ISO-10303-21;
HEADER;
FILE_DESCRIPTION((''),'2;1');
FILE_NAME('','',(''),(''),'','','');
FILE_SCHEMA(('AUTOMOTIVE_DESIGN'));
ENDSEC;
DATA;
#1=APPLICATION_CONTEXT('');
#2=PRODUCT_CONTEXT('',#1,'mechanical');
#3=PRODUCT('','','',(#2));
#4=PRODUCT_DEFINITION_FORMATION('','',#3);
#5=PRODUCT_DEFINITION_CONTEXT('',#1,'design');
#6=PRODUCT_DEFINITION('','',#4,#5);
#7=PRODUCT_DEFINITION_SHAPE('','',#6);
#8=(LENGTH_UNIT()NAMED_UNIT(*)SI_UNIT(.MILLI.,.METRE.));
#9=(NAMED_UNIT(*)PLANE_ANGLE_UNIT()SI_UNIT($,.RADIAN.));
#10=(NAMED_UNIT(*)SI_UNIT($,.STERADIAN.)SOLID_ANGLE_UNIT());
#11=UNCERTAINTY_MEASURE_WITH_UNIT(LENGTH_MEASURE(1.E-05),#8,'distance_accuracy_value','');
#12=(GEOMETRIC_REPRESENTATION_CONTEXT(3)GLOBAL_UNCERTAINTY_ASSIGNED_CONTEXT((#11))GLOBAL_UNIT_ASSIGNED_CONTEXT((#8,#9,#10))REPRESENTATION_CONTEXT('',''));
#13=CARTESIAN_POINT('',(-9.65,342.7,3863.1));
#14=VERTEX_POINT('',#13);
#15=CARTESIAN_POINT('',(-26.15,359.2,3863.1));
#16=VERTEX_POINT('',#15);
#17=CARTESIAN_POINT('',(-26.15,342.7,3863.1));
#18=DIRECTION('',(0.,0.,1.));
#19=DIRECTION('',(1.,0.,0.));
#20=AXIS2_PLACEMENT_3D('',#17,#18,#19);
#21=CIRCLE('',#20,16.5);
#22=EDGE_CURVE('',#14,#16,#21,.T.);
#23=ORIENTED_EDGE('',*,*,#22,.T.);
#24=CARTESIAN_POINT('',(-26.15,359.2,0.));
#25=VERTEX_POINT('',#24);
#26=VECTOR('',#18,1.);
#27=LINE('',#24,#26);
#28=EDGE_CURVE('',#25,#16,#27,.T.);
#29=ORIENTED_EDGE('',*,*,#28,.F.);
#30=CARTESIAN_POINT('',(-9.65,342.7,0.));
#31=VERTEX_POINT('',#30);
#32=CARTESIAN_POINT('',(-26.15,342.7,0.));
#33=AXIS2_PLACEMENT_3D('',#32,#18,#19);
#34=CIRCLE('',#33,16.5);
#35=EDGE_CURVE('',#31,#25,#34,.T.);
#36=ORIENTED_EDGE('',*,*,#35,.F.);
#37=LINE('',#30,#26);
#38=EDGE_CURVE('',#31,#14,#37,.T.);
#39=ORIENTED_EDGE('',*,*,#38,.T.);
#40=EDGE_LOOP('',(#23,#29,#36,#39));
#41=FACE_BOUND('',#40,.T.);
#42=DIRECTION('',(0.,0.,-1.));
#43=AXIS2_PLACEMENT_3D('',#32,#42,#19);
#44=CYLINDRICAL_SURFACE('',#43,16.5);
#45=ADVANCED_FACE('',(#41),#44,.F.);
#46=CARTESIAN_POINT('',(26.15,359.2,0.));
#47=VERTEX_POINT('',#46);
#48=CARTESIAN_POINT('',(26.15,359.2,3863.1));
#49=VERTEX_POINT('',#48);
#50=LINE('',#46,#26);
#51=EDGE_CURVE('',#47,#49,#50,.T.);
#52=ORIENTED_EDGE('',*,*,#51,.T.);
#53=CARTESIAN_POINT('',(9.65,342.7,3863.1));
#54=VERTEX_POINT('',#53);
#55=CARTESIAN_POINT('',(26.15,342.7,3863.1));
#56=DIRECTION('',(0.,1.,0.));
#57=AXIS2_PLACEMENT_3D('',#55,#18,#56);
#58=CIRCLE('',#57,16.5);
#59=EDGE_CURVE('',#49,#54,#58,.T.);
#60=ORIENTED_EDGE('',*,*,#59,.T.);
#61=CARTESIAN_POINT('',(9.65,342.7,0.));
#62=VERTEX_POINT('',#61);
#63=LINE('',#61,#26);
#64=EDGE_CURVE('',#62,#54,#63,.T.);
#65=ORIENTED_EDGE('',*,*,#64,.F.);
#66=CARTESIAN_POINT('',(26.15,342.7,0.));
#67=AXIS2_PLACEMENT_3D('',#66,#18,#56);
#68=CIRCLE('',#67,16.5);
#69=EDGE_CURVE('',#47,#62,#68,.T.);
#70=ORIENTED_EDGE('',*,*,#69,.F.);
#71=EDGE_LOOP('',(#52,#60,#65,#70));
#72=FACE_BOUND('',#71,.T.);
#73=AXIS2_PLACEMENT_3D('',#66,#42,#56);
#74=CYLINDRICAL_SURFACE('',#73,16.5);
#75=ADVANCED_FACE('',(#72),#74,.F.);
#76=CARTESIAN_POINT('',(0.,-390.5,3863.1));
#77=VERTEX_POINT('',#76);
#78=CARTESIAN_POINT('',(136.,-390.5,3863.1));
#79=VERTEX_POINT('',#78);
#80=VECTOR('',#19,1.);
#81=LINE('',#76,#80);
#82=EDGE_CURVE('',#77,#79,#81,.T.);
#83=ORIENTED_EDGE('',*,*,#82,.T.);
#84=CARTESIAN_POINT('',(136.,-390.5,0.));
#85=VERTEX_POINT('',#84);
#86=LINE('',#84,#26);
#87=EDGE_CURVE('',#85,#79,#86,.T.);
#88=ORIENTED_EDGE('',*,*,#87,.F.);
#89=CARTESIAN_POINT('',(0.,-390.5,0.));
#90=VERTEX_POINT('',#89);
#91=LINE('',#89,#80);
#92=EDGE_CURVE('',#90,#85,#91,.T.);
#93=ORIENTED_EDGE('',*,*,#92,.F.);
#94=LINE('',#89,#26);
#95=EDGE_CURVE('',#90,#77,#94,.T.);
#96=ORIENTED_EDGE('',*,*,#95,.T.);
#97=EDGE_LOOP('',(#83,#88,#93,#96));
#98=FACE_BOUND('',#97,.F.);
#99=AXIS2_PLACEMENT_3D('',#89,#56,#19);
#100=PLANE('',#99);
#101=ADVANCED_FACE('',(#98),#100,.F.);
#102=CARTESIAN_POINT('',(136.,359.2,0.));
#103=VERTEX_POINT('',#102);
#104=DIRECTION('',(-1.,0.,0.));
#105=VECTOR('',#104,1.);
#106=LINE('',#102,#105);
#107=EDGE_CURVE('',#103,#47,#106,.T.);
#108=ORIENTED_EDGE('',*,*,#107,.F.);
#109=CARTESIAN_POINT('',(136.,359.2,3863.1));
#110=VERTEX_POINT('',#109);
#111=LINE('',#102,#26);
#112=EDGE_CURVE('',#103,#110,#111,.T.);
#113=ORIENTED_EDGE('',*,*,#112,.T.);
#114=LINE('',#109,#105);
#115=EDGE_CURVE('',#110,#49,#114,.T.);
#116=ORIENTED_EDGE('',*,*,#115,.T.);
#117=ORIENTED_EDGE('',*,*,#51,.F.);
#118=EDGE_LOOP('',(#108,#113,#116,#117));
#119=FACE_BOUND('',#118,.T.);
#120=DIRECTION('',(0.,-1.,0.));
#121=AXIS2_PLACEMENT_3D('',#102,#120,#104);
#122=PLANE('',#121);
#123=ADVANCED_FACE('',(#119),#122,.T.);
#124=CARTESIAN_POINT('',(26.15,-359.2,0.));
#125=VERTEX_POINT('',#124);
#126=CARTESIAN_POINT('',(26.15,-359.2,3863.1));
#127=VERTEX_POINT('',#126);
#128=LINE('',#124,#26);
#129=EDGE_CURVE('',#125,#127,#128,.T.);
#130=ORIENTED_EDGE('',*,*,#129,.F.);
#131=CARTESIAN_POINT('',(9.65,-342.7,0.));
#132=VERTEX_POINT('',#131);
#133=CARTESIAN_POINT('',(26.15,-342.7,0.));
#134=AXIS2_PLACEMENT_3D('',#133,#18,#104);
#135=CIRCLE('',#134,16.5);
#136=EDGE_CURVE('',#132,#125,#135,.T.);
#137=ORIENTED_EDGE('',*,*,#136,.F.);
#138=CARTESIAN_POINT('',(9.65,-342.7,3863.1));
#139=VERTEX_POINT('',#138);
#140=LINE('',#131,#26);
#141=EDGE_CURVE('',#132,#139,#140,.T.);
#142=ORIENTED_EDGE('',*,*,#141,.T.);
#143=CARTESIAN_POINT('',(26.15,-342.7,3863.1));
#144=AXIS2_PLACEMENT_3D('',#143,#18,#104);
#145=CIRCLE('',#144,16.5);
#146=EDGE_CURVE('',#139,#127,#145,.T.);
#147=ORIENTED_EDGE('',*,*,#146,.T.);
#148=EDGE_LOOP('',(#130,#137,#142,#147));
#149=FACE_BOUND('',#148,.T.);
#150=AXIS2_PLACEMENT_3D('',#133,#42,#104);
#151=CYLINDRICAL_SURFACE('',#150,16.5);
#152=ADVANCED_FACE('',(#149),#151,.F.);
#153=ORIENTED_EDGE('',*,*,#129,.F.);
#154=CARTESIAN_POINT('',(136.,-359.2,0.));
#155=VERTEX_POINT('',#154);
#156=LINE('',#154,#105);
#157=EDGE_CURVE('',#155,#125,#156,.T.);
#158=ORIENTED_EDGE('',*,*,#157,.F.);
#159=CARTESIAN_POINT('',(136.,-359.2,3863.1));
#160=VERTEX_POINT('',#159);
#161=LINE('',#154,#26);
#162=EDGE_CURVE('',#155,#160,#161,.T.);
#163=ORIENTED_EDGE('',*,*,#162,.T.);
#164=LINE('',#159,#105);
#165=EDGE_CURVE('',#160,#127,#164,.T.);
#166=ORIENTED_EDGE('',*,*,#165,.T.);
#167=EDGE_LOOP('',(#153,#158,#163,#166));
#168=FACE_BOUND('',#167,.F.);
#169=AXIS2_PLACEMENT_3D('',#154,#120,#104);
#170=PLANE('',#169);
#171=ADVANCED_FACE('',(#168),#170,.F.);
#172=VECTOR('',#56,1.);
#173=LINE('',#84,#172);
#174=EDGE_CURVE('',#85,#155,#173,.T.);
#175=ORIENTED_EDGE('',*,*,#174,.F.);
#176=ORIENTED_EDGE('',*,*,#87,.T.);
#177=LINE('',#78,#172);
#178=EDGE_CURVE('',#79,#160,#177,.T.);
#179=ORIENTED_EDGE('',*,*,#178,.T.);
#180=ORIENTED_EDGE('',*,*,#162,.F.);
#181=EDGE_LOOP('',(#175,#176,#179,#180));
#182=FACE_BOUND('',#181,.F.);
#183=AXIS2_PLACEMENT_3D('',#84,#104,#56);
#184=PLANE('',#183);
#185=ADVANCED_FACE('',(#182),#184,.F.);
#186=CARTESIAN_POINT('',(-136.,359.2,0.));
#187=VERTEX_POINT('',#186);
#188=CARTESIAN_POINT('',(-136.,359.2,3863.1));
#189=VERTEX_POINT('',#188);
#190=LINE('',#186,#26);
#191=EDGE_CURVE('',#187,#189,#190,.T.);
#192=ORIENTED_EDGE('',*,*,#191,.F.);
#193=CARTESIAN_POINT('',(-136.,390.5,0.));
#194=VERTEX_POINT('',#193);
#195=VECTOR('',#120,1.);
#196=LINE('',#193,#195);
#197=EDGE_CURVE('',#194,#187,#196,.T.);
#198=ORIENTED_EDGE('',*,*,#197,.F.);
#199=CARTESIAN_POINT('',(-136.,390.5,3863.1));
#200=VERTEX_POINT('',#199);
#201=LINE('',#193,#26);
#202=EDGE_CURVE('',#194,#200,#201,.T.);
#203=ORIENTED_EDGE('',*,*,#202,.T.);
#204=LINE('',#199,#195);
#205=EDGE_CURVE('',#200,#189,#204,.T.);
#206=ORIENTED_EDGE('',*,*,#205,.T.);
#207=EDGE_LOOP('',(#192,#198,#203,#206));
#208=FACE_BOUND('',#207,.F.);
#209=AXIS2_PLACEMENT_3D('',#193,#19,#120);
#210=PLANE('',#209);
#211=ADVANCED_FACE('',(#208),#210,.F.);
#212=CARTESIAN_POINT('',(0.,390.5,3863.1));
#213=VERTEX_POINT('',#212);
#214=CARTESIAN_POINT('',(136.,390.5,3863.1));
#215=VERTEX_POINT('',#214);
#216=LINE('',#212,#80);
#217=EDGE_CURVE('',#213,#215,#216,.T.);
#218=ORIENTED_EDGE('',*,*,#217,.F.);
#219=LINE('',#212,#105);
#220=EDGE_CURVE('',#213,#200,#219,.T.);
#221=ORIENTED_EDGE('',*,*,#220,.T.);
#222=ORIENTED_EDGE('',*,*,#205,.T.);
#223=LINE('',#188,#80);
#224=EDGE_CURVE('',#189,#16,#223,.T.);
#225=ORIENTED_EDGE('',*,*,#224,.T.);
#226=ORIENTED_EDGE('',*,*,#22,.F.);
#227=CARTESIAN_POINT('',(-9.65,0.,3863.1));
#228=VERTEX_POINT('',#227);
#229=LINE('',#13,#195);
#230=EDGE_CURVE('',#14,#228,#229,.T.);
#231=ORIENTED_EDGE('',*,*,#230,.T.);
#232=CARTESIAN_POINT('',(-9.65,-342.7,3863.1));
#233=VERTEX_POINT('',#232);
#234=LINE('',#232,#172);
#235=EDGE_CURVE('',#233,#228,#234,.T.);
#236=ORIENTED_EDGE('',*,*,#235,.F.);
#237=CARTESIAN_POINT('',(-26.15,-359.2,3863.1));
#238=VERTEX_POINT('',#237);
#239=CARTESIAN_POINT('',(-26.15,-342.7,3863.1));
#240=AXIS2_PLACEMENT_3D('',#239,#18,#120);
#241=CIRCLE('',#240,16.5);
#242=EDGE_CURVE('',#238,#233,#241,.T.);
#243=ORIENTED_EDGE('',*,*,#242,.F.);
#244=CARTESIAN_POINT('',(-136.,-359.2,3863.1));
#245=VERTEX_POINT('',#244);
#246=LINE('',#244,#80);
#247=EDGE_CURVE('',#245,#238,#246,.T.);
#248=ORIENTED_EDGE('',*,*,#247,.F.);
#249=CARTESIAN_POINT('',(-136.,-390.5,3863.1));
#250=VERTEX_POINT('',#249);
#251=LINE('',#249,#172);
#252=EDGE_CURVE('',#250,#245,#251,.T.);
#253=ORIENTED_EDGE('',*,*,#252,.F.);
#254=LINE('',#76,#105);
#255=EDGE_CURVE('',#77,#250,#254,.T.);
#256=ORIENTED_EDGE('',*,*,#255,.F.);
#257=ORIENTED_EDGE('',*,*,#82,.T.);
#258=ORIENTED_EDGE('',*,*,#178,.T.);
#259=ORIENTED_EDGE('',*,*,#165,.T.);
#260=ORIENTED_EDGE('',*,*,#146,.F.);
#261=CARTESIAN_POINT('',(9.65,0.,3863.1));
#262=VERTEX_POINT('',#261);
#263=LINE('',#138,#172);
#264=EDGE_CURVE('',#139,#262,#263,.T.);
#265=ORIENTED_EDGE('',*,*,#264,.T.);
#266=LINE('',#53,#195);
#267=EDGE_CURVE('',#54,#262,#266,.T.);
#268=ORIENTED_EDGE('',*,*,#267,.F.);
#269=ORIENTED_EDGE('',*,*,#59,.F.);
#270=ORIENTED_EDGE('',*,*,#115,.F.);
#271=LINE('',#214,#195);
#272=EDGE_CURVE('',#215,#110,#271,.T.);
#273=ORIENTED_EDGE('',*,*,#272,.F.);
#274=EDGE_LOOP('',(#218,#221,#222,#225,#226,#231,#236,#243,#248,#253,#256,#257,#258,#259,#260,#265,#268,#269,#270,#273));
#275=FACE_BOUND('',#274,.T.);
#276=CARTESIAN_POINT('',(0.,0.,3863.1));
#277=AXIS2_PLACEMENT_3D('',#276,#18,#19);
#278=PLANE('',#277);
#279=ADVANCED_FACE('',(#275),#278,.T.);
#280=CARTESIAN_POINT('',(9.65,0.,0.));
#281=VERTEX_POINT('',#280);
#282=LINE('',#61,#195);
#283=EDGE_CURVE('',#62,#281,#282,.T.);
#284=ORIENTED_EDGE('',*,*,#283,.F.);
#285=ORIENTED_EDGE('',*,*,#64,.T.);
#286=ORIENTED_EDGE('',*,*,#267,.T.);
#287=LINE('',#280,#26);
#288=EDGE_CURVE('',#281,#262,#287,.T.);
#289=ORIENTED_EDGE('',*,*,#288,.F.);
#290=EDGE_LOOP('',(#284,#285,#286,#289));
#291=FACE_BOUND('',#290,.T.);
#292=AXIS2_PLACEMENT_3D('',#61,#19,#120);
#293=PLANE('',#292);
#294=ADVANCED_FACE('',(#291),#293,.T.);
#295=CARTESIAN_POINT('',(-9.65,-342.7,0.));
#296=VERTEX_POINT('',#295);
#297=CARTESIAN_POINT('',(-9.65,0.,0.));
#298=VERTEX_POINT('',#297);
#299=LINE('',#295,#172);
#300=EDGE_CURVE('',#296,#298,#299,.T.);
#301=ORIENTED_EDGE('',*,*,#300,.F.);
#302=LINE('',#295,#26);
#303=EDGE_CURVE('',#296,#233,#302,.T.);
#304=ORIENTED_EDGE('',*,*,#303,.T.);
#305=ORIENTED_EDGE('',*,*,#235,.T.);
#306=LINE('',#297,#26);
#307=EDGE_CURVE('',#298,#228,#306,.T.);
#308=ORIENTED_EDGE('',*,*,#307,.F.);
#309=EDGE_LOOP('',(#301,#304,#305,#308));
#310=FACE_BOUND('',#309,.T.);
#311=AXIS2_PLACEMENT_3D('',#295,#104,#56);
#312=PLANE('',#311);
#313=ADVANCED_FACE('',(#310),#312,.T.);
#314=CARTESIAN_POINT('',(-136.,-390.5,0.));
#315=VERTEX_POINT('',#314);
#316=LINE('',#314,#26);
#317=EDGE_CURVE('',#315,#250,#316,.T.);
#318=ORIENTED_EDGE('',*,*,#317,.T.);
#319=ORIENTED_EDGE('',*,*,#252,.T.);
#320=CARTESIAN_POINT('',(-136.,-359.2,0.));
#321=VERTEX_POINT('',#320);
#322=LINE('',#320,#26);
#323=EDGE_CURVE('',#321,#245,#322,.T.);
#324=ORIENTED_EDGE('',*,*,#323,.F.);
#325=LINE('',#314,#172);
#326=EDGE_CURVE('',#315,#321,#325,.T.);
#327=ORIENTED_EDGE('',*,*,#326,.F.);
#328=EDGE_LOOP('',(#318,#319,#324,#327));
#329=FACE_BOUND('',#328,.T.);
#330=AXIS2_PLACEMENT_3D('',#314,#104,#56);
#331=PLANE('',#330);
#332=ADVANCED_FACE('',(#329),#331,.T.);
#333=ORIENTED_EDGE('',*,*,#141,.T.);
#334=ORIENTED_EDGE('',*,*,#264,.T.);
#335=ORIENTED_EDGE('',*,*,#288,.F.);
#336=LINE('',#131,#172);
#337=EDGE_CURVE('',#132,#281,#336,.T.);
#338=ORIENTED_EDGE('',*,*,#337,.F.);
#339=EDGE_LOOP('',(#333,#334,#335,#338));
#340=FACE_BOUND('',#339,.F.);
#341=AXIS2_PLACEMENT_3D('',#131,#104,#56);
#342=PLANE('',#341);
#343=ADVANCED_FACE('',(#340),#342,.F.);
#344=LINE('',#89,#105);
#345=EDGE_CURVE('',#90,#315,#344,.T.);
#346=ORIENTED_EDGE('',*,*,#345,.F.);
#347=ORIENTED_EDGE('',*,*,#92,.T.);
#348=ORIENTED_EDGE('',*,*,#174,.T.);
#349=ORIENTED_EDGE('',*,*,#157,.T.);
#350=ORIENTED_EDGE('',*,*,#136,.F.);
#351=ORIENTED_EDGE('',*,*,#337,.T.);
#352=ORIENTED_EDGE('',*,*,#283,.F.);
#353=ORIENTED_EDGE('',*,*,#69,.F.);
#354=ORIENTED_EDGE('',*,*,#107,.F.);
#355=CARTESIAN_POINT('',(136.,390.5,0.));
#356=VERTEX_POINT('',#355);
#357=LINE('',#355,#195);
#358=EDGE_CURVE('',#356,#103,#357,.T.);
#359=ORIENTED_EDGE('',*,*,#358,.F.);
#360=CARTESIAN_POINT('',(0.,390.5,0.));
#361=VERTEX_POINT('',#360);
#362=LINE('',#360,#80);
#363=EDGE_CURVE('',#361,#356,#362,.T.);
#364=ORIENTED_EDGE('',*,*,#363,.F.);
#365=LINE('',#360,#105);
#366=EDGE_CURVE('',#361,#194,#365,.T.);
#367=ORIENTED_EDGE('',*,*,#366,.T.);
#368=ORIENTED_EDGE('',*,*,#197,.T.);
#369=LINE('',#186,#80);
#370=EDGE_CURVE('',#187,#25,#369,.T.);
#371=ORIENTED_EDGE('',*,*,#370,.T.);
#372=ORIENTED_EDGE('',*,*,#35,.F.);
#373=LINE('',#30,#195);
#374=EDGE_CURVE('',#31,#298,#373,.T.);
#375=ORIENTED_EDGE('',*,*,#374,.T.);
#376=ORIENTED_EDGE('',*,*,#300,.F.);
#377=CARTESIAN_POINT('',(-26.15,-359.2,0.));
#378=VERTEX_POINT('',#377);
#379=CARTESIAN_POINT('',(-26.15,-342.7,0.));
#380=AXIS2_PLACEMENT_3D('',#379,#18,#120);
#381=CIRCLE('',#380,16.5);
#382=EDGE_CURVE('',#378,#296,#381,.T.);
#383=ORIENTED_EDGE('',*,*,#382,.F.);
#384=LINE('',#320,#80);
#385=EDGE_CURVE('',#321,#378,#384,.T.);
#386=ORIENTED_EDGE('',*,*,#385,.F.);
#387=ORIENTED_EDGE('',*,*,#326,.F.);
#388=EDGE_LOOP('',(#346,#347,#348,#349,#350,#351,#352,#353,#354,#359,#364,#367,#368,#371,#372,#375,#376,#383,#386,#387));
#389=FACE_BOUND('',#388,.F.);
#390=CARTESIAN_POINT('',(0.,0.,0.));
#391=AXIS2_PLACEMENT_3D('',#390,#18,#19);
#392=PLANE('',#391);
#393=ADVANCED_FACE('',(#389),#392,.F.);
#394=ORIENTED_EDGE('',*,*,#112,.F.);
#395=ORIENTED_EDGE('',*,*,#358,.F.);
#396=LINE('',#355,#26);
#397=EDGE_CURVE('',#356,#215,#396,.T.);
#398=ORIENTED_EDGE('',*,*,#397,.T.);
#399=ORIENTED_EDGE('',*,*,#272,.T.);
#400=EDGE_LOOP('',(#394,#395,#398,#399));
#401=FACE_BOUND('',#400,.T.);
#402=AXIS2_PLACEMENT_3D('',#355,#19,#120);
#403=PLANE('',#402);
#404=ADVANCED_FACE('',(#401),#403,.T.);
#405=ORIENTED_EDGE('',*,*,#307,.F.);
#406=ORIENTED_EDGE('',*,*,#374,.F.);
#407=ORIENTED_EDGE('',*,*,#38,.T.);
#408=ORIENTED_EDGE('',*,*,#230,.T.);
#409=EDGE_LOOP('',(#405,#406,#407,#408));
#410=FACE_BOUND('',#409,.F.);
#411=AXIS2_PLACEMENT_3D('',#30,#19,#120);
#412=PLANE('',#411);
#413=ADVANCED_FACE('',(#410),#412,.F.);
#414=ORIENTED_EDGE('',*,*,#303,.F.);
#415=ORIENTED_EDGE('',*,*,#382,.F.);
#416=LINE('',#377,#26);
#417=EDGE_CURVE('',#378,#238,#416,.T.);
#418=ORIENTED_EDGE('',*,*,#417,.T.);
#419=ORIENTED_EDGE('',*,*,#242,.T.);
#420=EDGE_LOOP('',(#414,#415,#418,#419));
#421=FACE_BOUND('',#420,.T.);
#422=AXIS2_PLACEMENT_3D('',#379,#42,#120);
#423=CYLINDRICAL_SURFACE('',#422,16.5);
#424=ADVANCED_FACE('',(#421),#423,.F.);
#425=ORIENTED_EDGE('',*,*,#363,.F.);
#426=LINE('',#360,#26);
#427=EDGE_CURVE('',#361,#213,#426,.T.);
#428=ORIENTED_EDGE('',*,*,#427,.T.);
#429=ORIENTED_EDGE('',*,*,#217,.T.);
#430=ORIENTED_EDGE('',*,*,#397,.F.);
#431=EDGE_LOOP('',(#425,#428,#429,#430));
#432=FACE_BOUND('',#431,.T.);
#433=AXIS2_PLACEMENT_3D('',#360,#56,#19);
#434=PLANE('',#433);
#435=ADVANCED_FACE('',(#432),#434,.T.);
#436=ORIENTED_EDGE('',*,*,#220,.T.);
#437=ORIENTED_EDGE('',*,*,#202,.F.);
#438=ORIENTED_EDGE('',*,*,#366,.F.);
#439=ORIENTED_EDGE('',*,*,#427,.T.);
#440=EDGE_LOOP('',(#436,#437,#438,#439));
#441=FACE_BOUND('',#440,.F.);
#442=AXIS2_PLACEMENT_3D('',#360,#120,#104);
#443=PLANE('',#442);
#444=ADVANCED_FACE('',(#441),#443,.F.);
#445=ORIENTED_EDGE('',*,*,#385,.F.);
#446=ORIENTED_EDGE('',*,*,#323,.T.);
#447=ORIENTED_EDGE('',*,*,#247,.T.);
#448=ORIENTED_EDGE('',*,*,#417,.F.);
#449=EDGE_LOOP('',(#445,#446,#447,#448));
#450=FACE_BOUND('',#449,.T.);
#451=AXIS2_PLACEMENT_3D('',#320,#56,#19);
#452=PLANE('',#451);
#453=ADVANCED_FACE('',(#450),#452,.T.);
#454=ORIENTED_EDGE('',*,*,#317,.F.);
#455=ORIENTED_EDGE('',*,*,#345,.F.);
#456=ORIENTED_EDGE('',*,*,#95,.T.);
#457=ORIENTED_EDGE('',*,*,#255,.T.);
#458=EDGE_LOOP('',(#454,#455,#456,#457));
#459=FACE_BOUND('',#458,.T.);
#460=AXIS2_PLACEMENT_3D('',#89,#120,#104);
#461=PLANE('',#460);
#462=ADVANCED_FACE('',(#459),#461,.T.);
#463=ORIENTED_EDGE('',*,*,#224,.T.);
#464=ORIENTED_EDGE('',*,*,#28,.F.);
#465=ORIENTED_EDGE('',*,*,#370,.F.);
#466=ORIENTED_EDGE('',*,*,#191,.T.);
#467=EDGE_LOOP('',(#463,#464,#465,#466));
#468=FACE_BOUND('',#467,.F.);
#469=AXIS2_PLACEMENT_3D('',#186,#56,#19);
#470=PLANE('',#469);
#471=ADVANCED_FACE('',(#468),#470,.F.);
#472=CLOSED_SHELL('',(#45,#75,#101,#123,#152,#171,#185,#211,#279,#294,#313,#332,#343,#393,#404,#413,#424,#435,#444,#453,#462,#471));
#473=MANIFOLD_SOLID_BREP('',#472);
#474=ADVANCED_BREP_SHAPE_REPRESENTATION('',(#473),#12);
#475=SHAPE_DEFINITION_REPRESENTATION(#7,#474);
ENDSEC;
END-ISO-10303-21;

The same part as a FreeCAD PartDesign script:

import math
import FreeCAD as App
import Part
import Sketcher

V = App.Vector
Q = App.Units.Quantity

doc = App.newDocument("Part")
params = doc.addObject("Spreadsheet::Sheet", "Params")
for row, (alias, value) in enumerate([
    ("sketch1_radius", "16.5 mm"),
    ("sketch1_height", "31.3 mm"),
    ("pad1_length", "3863.1 mm"),
], start=1):
    params.set(f"A{row}", alias)
    params.set(f"B{row}", "=" + value)
    params.setAlias(f"B{row}", alias)

body = doc.addObject("PartDesign::Body", "Body")

# Sketch on XY plane
sketch1 = body.newObject("Sketcher::SketchObject", "Sketch")
sketch1.AttachmentSupport = (doc.getObject("XY_Plane"), [""])
sketch1.MapMode = "FlatFace"
sketch1.addGeometry([
    Part.LineSegment(V(-136, -359, 0), V(-136, -390, 0)),  # 0
    Part.LineSegment(V(-136, -390, 0), V(136, -390, 0)),  # 1
    Part.LineSegment(V(136, -390, 0), V(136, -359, 0)),  # 2
    Part.LineSegment(V(136, -359, 0), V(26, -359, 0)),  # 3
    Part.ArcOfCircle(Part.Circle(V(26, -343, 0), V(0, 0, 1), 16), math.radians(180), math.radians(270)),  # 4
    Part.LineSegment(V(10, -343, 0), V(10, 343, 0)),  # 5
    Part.ArcOfCircle(Part.Circle(V(26, 343, 0), V(0, 0, 1), 16), math.radians(90), math.radians(180)),  # 6
    Part.LineSegment(V(26, 359, 0), V(136, 359, 0)),  # 7
    Part.LineSegment(V(136, 359, 0), V(136, 390, 0)),  # 8
    Part.LineSegment(V(136, 390, 0), V(-136, 390, 0)),  # 9
    Part.LineSegment(V(-136, 390, 0), V(-136, 359, 0)),  # 10
    Part.LineSegment(V(-136, 359, 0), V(-26, 359, 0)),  # 11
    Part.ArcOfCircle(Part.Circle(V(-26, 343, 0), V(0, 0, 1), 16), math.radians(0), math.radians(90)),  # 12
    Part.LineSegment(V(-10, 343, 0), V(-10, -343, 0)),  # 13
    Part.ArcOfCircle(Part.Circle(V(-26, -343, 0), V(0, 0, 1), 16), math.radians(-90), math.radians(0)),  # 14
    Part.LineSegment(V(-26, -359, 0), V(-136, -359, 0)),  # 15
], False)
sketch1.addConstraint([
    Sketcher.Constraint("Coincident", 0, 2, 1, 1),
    Sketcher.Constraint("Coincident", 1, 2, 2, 1),
    Sketcher.Constraint("Coincident", 2, 2, 3, 1),
    Sketcher.Constraint("Tangent", 3, 2, 4, 2),
    Sketcher.Constraint("Tangent", 4, 1, 5, 1),
    Sketcher.Constraint("Tangent", 5, 2, 6, 2),
    Sketcher.Constraint("Tangent", 6, 1, 7, 1),
    Sketcher.Constraint("Coincident", 7, 2, 8, 1),
    Sketcher.Constraint("Coincident", 8, 2, 9, 1),
    Sketcher.Constraint("Coincident", 9, 2, 10, 1),
    Sketcher.Constraint("Coincident", 10, 2, 11, 1),
    Sketcher.Constraint("Tangent", 11, 2, 12, 2),
    Sketcher.Constraint("Tangent", 12, 1, 13, 1),
    Sketcher.Constraint("Tangent", 13, 2, 14, 2),
    Sketcher.Constraint("Tangent", 14, 1, 15, 1),
    Sketcher.Constraint("Coincident", 15, 2, 0, 1),
    Sketcher.Constraint("Vertical", 0),
    Sketcher.Constraint("Horizontal", 1),
    Sketcher.Constraint("Vertical", 2),
    Sketcher.Constraint("Horizontal", 3),
    Sketcher.Constraint("Vertical", 5),
    Sketcher.Constraint("Horizontal", 7),
    Sketcher.Constraint("Vertical", 8),
    Sketcher.Constraint("Horizontal", 9),
    Sketcher.Constraint("Vertical", 10),
    Sketcher.Constraint("Horizontal", 11),
    Sketcher.Constraint("Vertical", 13),
    Sketcher.Constraint("Horizontal", 15),
    Sketcher.Constraint("Equal", 4, 6),
    Sketcher.Constraint("Equal", 6, 12),
    Sketcher.Constraint("Equal", 12, 14),
    Sketcher.Constraint("Symmetric", 4, 3, 12, 3, -1, 1),
    Sketcher.Constraint("Symmetric", 0, 2, 8, 2, -1, 1),
    Sketcher.Constraint("Symmetric", 7, 2, 10, 2, -2),
    Sketcher.Constraint("Symmetric", 2, 2, 15, 2, -2),
    Sketcher.Constraint("Radius", 4, Q("16.5 mm")),
    Sketcher.Constraint("DistanceY", 0, 2, 0, 1, Q("31.3 mm")),
    Sketcher.Constraint("DistanceX", 0, 2, -1, 1, Q("136 mm")),
    Sketcher.Constraint("DistanceY", 0, 2, -1, 1, Q("390.5 mm")),
    Sketcher.Constraint("DistanceX", -1, 1, 4, 1, Q("9.65 mm")),
])
sketch1.setExpression("Constraints[35]", "Params.sketch1_radius")
sketch1.setExpression("Constraints[36]", "Params.sketch1_height")
pad1 = body.newObject("PartDesign::Pad", "Pad")
pad1.Profile = sketch1
pad1.setExpression("Length", "Params.pad1_length")

doc.recompute()
